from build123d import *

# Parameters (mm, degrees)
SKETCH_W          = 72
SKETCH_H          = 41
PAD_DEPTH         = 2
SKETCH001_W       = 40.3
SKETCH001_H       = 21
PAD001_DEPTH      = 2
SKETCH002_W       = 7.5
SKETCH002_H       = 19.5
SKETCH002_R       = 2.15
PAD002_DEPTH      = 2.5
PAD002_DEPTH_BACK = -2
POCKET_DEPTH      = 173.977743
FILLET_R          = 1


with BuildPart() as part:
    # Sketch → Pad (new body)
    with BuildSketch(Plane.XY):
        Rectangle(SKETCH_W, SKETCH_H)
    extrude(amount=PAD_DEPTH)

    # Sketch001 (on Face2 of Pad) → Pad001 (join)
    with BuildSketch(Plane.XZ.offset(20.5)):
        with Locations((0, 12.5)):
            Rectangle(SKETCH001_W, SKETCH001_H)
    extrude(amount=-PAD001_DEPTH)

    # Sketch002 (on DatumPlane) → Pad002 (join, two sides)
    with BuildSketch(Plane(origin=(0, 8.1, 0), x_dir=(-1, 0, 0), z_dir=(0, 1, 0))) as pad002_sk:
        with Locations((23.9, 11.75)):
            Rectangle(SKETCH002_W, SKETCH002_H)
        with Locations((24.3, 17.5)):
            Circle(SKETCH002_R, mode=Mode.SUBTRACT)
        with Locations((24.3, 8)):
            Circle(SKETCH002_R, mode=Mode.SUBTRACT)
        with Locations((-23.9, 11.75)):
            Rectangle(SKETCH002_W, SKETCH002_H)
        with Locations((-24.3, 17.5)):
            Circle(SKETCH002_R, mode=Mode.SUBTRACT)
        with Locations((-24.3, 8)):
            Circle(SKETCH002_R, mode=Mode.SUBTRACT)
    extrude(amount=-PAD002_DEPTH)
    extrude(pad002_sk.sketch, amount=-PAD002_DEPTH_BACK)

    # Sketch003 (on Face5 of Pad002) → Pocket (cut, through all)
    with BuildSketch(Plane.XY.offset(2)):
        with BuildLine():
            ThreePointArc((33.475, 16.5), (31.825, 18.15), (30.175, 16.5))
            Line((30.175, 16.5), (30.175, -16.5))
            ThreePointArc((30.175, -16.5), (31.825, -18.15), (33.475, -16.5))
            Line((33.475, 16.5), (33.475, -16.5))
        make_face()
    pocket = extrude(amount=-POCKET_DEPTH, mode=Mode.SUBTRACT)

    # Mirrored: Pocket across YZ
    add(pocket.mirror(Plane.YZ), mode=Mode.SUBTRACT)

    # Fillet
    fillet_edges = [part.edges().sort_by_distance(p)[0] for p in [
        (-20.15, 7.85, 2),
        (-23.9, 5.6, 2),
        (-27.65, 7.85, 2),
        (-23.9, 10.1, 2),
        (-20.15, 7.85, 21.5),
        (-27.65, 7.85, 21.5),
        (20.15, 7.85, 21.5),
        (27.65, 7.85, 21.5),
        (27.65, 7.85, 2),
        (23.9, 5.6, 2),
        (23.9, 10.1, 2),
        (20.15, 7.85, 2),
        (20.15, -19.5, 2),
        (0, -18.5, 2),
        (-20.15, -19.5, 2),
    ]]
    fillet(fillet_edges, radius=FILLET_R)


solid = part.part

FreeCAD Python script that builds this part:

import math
import FreeCAD as App
import Part
import Sketcher
from FreeCAD import Vector
Q = App.Units.Quantity


def edges_at(feature, points):
    """Names of the edges that pass closest to the given points."""
    edges = feature.Shape.Edges
    near = lambda p: min(range(len(edges)), key=lambda i: edges[i].distToShape(Part.Vertex(*p))[0])
    return sorted({f"Edge{near(p) + 1}" for p in points})


def add_polygon(sketch, points):
    """Adds a closed chain of lines whose ends are joined by coincident constraints."""
    first, n = sketch.GeometryCount, len(points)
    for a, b in zip(points, points[1:] + points[:1]):
        sketch.addGeometry(Part.LineSegment(App.Vector(*a, 0), App.Vector(*b, 0)), False)
    for i in range(n):
        sketch.addConstraint(Sketcher.Constraint("Coincident", first + i, 2, first + (i + 1) % n, 1))

doc = App.newDocument("Part")
body = doc.addObject("PartDesign::Body", "Body")

sketch1 = body.newObject("Sketcher::SketchObject", "Sketch")
sketch1.AttachmentSupport = (doc.getObject("XY_Plane"), [""])
sketch1.MapMode = "FlatFace"
add_polygon(sketch1, [(-36, 20.5), (-36, -20.5), (36, -20.5), (36, 20.5)])
sketch1.addConstraint([
    Sketcher.Constraint("Vertical", 0),
    Sketcher.Constraint("Horizontal", 1),
    Sketcher.Constraint("Vertical", 2),
    Sketcher.Constraint("Horizontal", 3),
    Sketcher.Constraint("Symmetric", 0, 2, 2, 2, -1, 1),
    Sketcher.Constraint("DistanceX", 1, 1, 1, 2, Q("72 mm")),
    Sketcher.Constraint("DistanceY", 0, 2, 0, 1, Q("41 mm")),
])
pad1 = body.newObject("PartDesign::Pad", "Pad")
pad1.Profile = sketch1
pad1.Length = 2

sketch2 = body.newObject("Sketcher::SketchObject", "Sketch001")
sketch2.AttachmentSupport = (doc.getObject("XZ_Plane"), [""])
sketch2.MapMode = "FlatFace"
sketch2.AttachmentOffset = App.Placement(Vector(0, 0, 20.5), App.Rotation())
add_polygon(sketch2, [(-20.15, 23), (-20.15, 2), (20.15, 2), (20.15, 23)])
sketch2.addConstraint([
    Sketcher.Constraint("Vertical", 0),
    Sketcher.Constraint("Horizontal", 1),
    Sketcher.Constraint("Vertical", 2),
    Sketcher.Constraint("Horizontal", 3),
    Sketcher.Constraint("DistanceY", 0, 2, 0, 1, Q("21 mm")),
    Sketcher.Constraint("DistanceX", 1, 1, 1, 2, Q("40.3 mm")),
    Sketcher.Constraint("DistanceY", -1, 1, 0, 2, Q("2 mm")),
    Sketcher.Constraint("DistanceX", 0, 2, -1, 1, Q("20.15 mm")),
])
pad2 = body.newObject("PartDesign::Pad", "Pad001")
pad2.Profile = sketch2
pad2.Length = 2
pad2.Reversed = True

sketch3 = body.newObject("Sketcher::SketchObject", "Sketch002")
sketch3.AttachmentSupport = (doc.getObject("XZ_Plane"), [""])
sketch3.MapMode = "FlatFace"
sketch3.AttachmentOffset = App.Placement(Vector(0, 0, -8.1), App.Rotation())
add_polygon(sketch3, [(-20.15, 21.5), (-20.15, 2), (-27.65, 2), (-27.65, 21.5)])
sketch3.addGeometry(Part.Circle(Vector(-24.3, 8, 0), Vector(0, 0, 1), 2.15), False)
sketch3.addGeometry(Part.Circle(Vector(-24.3, 17.5, 0), Vector(0, 0, 1), 2.15), False)
add_polygon(sketch3, [(27.65, 21.5), (27.65, 2), (20.15, 2), (20.15, 21.5)])
sketch3.addGeometry(Part.Circle(Vector(24.3, 8, 0), Vector(0, 0, 1), 2.15), False)
sketch3.addGeometry(Part.Circle(Vector(24.3, 17.5, 0), Vector(0, 0, 1), 2.15), False)
sketch3.addConstraint([
    Sketcher.Constraint("Vertical", 0),
    Sketcher.Constraint("Horizontal", 1),
    Sketcher.Constraint("Vertical", 2),
    Sketcher.Constraint("Horizontal", 3),
    Sketcher.Constraint("Vertical", 6),
    Sketcher.Constraint("Horizontal", 7),
    Sketcher.Constraint("Vertical", 8),
    Sketcher.Constraint("Horizontal", 9),
    Sketcher.Constraint("Equal", 4, 5),
    Sketcher.Constraint("Equal", 5, 10),
    Sketcher.Constraint("Equal", 10, 11),
    Sketcher.Constraint("Symmetric", 4, 3, 10, 3, -2),
    Sketcher.Constraint("Symmetric", 5, 3, 11, 3, -2),
    Sketcher.Constraint("Symmetric", 1, 2, 6, 2, -2),
    Sketcher.Constraint("Symmetric", 3, 2, 8, 2, -2),
    Sketcher.Constraint("Vertical", 4, 3, 5, 3),
    Sketcher.Constraint("Diameter", 4, Q("4.3 mm")),
    Sketcher.Constraint("DistanceX", 1, 2, 1, 1, Q("7.5 mm")),
    Sketcher.Constraint("DistanceY", 0, 2, 0, 1, Q("19.5 mm")),
    Sketcher.Constraint("DistanceY", -1, 1, 4, 3, Q("8 mm")),
    Sketcher.Constraint("DistanceY", -1, 1, 0, 2, Q("2 mm")),
    Sketcher.Constraint("DistanceY", 5, 3, 2, 2, Q("4 mm")),
    Sketcher.Constraint("DistanceX", 4, 3, -1, 1, Q("24.3 mm")),
    Sketcher.Constraint("DistanceX", 0, 2, 6, 2, Q("47.8 mm")),
])
pad3 = body.newObject("PartDesign::Pad", "Pad002")
pad3.Profile = sketch3
pad3.Type = "TwoLengths"
pad3.Length = 2.5
pad3.Length2 = 2

sketch4 = body.newObject("Sketcher::SketchObject", "Sketch003")
sketch4.AttachmentSupport = (doc.getObject("XY_Plane"), [""])
sketch4.MapMode = "FlatFace"
sketch4.AttachmentOffset = App.Placement(Vector(0, 0, 2), App.Rotation())
sketch4.addGeometry([
    Part.ArcOfCircle(Part.Circle(Vector(31.825, 16.5, 0), Vector(0, 0, 1), 1.65), math.radians(0), math.radians(180)),
    Part.LineSegment(Vector(30.175, 16.5, 0), Vector(30.175, -16.5, 0)),
    Part.ArcOfCircle(Part.Circle(Vector(31.825, -16.5, 0), Vector(0, 0, 1), 1.65), math.radians(180), math.radians(360)),
    Part.LineSegment(Vector(33.475, -16.5, 0), Vector(33.475, 16.5, 0)),
], False)
sketch4.addConstraint([
    Sketcher.Constraint("Tangent", 0, 2, 1, 1),
    Sketcher.Constraint("Tangent", 1, 2, 2, 1),
    Sketcher.Constraint("Tangent", 2, 2, 3, 1),
    Sketcher.Constraint("Tangent", 3, 2, 0, 1),
    Sketcher.Constraint("Vertical", 1),
    Sketcher.Constraint("Vertical", 3),
    Sketcher.Constraint("DistanceY", 1, 2, 1, 1, Q("33 mm")),
    Sketcher.Constraint("Radius", 0, Q("1.65 mm")),
    Sketcher.Constraint("DistanceY", -1, 1, 0, 3, Q("16.5 mm")),
    Sketcher.Constraint("DistanceX", -1, 1, 0, 3, Q("31.825 mm")),
])
pocket1 = body.newObject("PartDesign::Pocket", "Pocket")
pocket1.Profile = sketch4
pocket1.Type = "ThroughAll"
doc.recompute()

mirrored = body.newObject("PartDesign::Mirrored", "Mirrored")
mirrored.Originals = [pocket1]
mirrored.MirrorPlane = (doc.getObject("YZ_Plane"), [""])
body.Tip = mirrored
doc.recompute()

fillet = body.newObject("PartDesign::Fillet", "Fillet")
fillet.Base = (mirrored, edges_at(mirrored, [
    (-20.15, 7.85, 2),
    (-23.9, 5.6, 2),
    (-27.65, 7.85, 2),
    (-23.9, 10.1, 2),
    (-20.15, 7.85, 21.5),
    (-27.65, 7.85, 21.5),
    (20.15, 7.85, 21.5),
    (27.65, 7.85, 21.5),
    (27.65, 7.85, 2),
    (23.9, 5.6, 2),
    (23.9, 10.1, 2),
    (20.15, 7.85, 2),
    (20.15, -19.5, 2),
    (0, -18.5, 2),
    (-20.15, -19.5, 2),
]))
fillet.Radius = 1

doc.recompute()
